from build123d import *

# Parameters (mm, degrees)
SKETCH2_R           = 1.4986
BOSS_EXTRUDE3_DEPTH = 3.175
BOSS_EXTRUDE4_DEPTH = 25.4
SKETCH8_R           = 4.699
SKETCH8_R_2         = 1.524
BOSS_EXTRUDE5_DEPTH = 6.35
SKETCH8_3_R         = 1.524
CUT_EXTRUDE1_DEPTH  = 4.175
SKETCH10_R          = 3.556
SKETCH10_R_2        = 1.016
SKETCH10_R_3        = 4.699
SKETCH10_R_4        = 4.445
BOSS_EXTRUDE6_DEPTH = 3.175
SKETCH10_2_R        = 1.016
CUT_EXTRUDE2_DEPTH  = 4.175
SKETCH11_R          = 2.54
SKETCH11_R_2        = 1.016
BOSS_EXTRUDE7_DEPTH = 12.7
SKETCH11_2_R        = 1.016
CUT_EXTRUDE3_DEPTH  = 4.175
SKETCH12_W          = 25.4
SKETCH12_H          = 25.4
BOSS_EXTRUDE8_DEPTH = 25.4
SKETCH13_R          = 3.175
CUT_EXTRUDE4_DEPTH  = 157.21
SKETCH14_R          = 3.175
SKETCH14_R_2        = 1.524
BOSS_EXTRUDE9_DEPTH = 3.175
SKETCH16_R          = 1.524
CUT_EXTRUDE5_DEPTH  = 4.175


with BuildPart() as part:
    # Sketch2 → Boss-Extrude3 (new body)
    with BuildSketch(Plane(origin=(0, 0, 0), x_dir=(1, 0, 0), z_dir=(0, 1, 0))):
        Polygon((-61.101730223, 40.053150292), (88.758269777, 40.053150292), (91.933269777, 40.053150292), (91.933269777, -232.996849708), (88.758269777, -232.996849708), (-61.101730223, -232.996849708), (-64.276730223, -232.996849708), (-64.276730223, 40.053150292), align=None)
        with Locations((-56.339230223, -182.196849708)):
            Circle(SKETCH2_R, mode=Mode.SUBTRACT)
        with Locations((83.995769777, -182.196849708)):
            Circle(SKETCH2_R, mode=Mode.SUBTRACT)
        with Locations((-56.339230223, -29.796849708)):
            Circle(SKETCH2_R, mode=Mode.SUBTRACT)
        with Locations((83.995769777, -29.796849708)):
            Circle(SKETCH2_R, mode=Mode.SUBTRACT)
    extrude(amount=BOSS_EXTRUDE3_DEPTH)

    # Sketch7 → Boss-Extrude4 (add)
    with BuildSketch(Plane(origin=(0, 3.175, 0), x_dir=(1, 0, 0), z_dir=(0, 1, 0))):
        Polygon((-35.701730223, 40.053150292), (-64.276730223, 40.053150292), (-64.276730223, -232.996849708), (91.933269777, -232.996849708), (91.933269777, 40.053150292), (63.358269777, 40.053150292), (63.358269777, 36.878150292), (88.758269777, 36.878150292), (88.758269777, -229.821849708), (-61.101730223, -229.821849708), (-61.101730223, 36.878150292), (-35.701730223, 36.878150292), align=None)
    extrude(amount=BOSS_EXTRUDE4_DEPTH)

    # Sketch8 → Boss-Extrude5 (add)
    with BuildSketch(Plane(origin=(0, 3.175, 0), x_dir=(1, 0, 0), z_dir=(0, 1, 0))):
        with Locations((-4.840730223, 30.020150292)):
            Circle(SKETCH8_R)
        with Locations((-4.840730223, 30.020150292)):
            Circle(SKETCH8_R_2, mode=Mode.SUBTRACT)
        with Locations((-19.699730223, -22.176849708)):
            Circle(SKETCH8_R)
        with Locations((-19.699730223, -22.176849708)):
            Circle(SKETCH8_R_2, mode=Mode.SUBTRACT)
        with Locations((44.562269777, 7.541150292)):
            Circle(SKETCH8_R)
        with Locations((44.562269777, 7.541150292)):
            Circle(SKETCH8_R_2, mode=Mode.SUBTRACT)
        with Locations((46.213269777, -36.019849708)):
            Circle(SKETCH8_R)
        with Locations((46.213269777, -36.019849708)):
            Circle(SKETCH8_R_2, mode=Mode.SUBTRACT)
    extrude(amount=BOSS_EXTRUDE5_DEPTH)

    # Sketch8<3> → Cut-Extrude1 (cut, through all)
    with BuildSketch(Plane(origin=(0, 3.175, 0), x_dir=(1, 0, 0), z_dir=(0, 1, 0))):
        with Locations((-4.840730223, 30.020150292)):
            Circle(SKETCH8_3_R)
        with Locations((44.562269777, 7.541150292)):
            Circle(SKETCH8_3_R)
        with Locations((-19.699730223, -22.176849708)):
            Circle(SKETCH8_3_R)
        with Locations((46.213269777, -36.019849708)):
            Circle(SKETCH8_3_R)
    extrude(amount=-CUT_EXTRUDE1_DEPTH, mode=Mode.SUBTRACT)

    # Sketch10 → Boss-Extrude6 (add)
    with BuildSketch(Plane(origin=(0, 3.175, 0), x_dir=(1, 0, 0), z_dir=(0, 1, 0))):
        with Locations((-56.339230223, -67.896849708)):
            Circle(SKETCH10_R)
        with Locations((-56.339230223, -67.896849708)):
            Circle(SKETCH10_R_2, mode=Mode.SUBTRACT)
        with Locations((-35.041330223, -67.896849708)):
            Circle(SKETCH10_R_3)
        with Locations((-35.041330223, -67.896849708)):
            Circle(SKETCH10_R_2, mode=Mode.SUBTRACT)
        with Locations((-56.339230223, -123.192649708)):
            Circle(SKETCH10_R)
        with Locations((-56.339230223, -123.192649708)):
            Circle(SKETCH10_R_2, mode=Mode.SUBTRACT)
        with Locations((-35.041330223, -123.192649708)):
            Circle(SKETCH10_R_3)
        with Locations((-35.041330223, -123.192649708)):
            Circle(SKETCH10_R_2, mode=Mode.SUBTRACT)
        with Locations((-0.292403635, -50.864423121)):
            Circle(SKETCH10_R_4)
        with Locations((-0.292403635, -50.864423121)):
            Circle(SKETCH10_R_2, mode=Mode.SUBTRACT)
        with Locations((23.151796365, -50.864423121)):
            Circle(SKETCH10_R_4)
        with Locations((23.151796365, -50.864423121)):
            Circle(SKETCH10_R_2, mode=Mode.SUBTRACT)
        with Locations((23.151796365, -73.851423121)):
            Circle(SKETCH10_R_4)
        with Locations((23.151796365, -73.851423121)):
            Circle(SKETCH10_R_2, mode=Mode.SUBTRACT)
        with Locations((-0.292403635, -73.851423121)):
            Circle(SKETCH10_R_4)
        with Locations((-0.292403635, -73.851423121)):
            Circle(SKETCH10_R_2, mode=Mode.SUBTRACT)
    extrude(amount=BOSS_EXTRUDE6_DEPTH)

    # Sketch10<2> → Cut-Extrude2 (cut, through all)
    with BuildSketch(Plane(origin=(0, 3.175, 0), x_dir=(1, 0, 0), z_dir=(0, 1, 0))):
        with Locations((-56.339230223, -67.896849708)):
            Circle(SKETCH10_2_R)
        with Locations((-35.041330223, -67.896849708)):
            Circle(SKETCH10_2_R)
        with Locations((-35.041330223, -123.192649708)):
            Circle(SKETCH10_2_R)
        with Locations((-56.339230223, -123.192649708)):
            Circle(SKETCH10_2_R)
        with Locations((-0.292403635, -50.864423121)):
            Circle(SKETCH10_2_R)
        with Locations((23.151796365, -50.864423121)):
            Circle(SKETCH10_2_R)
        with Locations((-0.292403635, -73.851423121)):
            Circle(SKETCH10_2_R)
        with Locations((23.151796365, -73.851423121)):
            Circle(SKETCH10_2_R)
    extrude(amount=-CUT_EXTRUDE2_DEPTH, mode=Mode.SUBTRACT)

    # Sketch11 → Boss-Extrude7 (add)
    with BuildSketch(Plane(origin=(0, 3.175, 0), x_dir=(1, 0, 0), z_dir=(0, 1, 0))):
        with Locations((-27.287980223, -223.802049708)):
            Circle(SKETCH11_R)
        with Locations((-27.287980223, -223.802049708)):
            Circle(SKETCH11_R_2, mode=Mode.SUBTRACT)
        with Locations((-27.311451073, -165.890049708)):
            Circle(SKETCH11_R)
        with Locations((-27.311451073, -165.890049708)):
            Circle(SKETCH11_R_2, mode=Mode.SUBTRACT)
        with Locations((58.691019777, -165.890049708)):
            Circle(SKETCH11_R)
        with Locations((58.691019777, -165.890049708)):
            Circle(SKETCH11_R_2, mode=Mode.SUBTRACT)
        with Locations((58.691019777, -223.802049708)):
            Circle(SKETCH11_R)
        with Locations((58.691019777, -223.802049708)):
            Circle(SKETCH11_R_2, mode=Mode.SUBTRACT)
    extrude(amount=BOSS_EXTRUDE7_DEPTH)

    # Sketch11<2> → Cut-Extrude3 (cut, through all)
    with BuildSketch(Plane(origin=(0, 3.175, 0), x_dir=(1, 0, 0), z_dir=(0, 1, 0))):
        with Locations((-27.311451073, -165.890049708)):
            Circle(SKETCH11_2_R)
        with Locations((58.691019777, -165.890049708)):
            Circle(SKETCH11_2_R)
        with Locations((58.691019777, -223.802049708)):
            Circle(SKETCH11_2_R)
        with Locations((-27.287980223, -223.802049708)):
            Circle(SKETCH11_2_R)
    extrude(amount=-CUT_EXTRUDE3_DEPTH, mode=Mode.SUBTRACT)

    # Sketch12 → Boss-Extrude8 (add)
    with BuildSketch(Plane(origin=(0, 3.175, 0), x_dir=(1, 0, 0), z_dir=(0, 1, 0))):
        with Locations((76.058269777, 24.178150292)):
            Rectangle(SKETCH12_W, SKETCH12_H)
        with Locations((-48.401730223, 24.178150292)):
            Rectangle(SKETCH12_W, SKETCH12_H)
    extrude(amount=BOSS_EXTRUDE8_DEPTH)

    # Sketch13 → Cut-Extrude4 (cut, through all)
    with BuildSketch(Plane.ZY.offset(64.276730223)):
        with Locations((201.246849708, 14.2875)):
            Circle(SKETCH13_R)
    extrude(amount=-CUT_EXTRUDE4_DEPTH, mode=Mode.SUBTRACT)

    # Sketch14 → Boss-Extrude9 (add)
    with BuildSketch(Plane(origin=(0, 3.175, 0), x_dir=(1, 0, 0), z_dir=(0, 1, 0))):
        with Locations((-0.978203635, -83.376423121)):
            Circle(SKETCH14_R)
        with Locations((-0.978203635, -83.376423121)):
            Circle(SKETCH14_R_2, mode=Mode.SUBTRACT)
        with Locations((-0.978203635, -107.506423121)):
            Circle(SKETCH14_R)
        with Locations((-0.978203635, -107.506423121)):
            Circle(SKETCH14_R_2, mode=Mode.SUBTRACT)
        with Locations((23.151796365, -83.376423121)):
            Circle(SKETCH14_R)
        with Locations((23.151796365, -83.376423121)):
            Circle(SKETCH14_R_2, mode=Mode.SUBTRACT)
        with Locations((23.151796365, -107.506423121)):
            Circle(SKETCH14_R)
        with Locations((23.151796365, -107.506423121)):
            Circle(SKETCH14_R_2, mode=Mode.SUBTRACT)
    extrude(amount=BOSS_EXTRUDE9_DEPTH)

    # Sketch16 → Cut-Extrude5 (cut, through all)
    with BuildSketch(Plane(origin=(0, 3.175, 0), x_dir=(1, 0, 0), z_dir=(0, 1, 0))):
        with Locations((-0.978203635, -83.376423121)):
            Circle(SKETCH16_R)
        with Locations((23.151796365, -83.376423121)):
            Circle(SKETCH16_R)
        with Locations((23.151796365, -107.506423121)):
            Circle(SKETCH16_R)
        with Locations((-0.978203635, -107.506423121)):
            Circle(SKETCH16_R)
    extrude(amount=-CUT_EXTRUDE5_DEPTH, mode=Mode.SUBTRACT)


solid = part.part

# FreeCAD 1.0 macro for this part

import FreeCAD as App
import Part
import Sketcher
from FreeCAD import Vector
Q = App.Units.Quantity


def add_polygon(sketch, points):
    """Adds a closed chain of lines whose ends are joined by coincident constraints."""
    first, n = sketch.GeometryCount, len(points)
    for a, b in zip(points, points[1:] + points[:1]):
        sketch.addGeometry(Part.LineSegment(App.Vector(*a, 0), App.Vector(*b, 0)), False)
    for i in range(n):
        sketch.addConstraint(Sketcher.Constraint("Coincident", first + i, 2, first + (i + 1) % n, 1))

doc = App.newDocument("Part")
body = doc.addObject("PartDesign::Body", "Body")

# Sketch on XZ plane
sketch1 = body.newObject("Sketcher::SketchObject", "Sketch")
sketch1.AttachmentSupport = (doc.getObject("XZ_Plane"), [""])
sketch1.MapMode = "FlatFace"
add_polygon(sketch1, [(91.9, -40.1), (-64.3, -40.1), (-64.3, 233), (91.9, 233)])  # lines 0-3
sketch1.addGeometry(Part.Circle(Vector(84, 182.2, 0), Vector(0, 0, 1), 1.5), False)  # 4
sketch1.addGeometry(Part.Circle(Vector(-56.3, 182.2, 0), Vector(0, 0, 1), 1.5), False)  # 5
sketch1.addGeometry(Part.Circle(Vector(84, 29.8, 0), Vector(0, 0, 1), 1.5), False)  # 6
sketch1.addGeometry(Part.Circle(Vector(-56.3, 29.8, 0), Vector(0, 0, 1), 1.5), False)  # 7
sketch1.addConstraint([
    Sketcher.Constraint("Horizontal", 0),
    Sketcher.Constraint("Vertical", 1),
    Sketcher.Constraint("Horizontal", 2),
    Sketcher.Constraint("Vertical", 3),
    Sketcher.Constraint("Equal", 4, 5),
    Sketcher.Constraint("Equal", 5, 6),
    Sketcher.Constraint("Equal", 6, 7),
    Sketcher.Constraint("Horizontal", 4, 3, 5, 3),
    Sketcher.Constraint("Horizontal", 6, 3, 7, 3),
    Sketcher.Constraint("Vertical", 4, 3, 6, 3),
    Sketcher.Constraint("Vertical", 5, 3, 7, 3),
    Sketcher.Constraint("Diameter", 4, Q("0.118 in")),
    Sketcher.Constraint("DistanceY", 6, 3, 4, 3, Q("6 in")),
    Sketcher.Constraint("DistanceY", 5, 3, 1, 2, Q("2 in")),
    Sketcher.Constraint("DistanceX", 0, 2, 0, 1, Q("6.15 in")),
    Sketcher.Constraint("DistanceY", 1, 1, 1, 2, Q("10.75 in")),
    Sketcher.Constraint("DistanceX", 5, 3, 4, 3, Q("5.525 in")),
    Sketcher.Constraint("DistanceX", 0, 2, 7, 3, Q("0.3125 in")),
    Sketcher.Constraint("DistanceX", -1, 1, 4, 3, Q("83.99577 mm")),
    Sketcher.Constraint("DistanceY", -1, 1, 4, 3, Q("182.19685 mm")),
])
pad1 = body.newObject("PartDesign::Pad", "Pad")
pad1.Profile = sketch1
pad1.Length = Q("0.125 in")
pad1.Reversed = True

# Sketch on XZ plane
sketch2 = body.newObject("Sketcher::SketchObject", "Sketch001")
sketch2.AttachmentSupport = (doc.getObject("XZ_Plane"), [""])
sketch2.MapMode = "FlatFace"
sketch2.AttachmentOffset = App.Placement(Vector(0, 0, -0.125 * 25.4), App.Rotation())
add_polygon(sketch2, [(-35.7, -40.1), (-64.3, -40.1), (-64.3, 233), (91.9, 233), (91.9, -40.1), (63.4, -40.1), (63.4, -36.9), (88.8, -36.9), (88.8, 229.8), (-61.1, 229.8), (-61.1, -36.9), (-35.7, -36.9)])  # lines 0-11
sketch2.addConstraint([
    Sketcher.Constraint("Horizontal", 0),
    Sketcher.Constraint("Vertical", 1),
    Sketcher.Constraint("Horizontal", 2),
    Sketcher.Constraint("Vertical", 3),
    Sketcher.Constraint("Horizontal", 4),
    Sketcher.Constraint("Vertical", 5),
    Sketcher.Constraint("Horizontal", 6),
    Sketcher.Constraint("Vertical", 7),
    Sketcher.Constraint("Horizontal", 8),
    Sketcher.Constraint("Vertical", 9),
    Sketcher.Constraint("Horizontal", 10),
    Sketcher.Constraint("Vertical", 11),
    Sketcher.Constraint("Horizontal", 0, 2, 3, 2),
    Sketcher.Constraint("Horizontal", 6, 2, 9, 2),
    Sketcher.Constraint("Equal", 0, 4),
    Sketcher.Constraint("Equal", 6, 10),
    Sketcher.Constraint("DistanceX", 6, 1, 6, 2, Q("1 in")),
    Sketcher.Constraint("DistanceX", 8, 2, 8, 1, Q("5.9 in")),
    Sketcher.Constraint("DistanceY", 7, 1, 7, 2, Q("10.5 in")),
    Sketcher.Constraint("DistanceX", 2, 1, 2, 2, Q("6.15 in")),
    Sketcher.Constraint("DistanceY", 1, 1, 1, 2, Q("10.75 in")),
    Sketcher.Constraint("DistanceY", 5, 1, 5, 2, Q("0.125 in")),
    Sketcher.Constraint("DistanceX", 0, 2, -1, 1, Q("64.27673 mm")),
    Sketcher.Constraint("DistanceY", 0, 2, -1, 1, Q("40.05315 mm")),
])
pad2 = body.newObject("PartDesign::Pad", "Pad001")
pad2.Profile = sketch2
pad2.Length = Q("1 in")
pad2.Reversed = True

# Sketch on XZ plane
sketch3 = body.newObject("Sketcher::SketchObject", "Sketch002")
sketch3.AttachmentSupport = (doc.getObject("XZ_Plane"), [""])
sketch3.MapMode = "FlatFace"
sketch3.AttachmentOffset = App.Placement(Vector(0, 0, -0.125 * 25.4), App.Rotation())
sketch3.addGeometry([
    Part.Circle(Vector(-4.8, -30, 0), Vector(0, 0, 1), 4.7),  # 0
    Part.Circle(Vector(-4.8, -30, 0), Vector(0, 0, 1), 1.5),  # 1
    Part.Circle(Vector(-19.7, 22.2, 0), Vector(0, 0, 1), 4.7),  # 2
    Part.Circle(Vector(-19.7, 22.2, 0), Vector(0, 0, 1), 1.5),  # 3
    Part.Circle(Vector(44.6, -7.5, 0), Vector(0, 0, 1), 4.7),  # 4
    Part.Circle(Vector(44.6, -7.5, 0), Vector(0, 0, 1), 1.5),  # 5
    Part.Circle(Vector(46.2, 36, 0), Vector(0, 0, 1), 4.7),  # 6
    Part.Circle(Vector(46.2, 36, 0), Vector(0, 0, 1), 1.5),  # 7
], False)
sketch3.addConstraint([
    Sketcher.Constraint("Coincident", 1, 3, 0, 3),
    Sketcher.Constraint("Coincident", 3, 3, 2, 3),
    Sketcher.Constraint("Coincident", 5, 3, 4, 3),
    Sketcher.Constraint("Coincident", 7, 3, 6, 3),
    Sketcher.Constraint("Equal", 0, 2),
    Sketcher.Constraint("Equal", 1, 3),
    Sketcher.Constraint("Equal", 2, 4),
    Sketcher.Constraint("Equal", 3, 5),
    Sketcher.Constraint("Equal", 4, 6),
    Sketcher.Constraint("Equal", 5, 7),
    Sketcher.Constraint("Diameter", 0, Q("0.37 in")),
    Sketcher.Constraint("Diameter", 1, Q("0.12 in")),
    Sketcher.Constraint("DistanceY", 0, 3, 6, 3, Q("2.6 in")),
    Sketcher.Constraint("DistanceX", 2, 3, 4, 3, Q("2.53 in")),
    Sketcher.Constraint("DistanceY", 4, 3, 2, 3, Q("1.17 in")),
    Sketcher.Constraint("DistanceX", 0, 3, 6, 3, Q("2.01 in")),
    Sketcher.Constraint("DistanceX", 2, 3, 0, 3, Q("0.585 in")),
    Sketcher.Constraint("DistanceY", 0, 3, 2, 3, Q("2.055 in")),
    Sketcher.Constraint("DistanceX", 0, 3, -1, 1, Q("4.84073 mm")),
    Sketcher.Constraint("DistanceY", 0, 3, -1, 1, Q("30.02015 mm")),
])
pad3 = body.newObject("PartDesign::Pad", "Pad002")
pad3.Profile = sketch3
pad3.Length = Q("0.25 in")
pad3.Reversed = True

# Sketch on XZ plane
sketch4 = body.newObject("Sketcher::SketchObject", "Sketch003")
sketch4.AttachmentSupport = (doc.getObject("XZ_Plane"), [""])
sketch4.MapMode = "FlatFace"
sketch4.AttachmentOffset = App.Placement(Vector(0, 0, -0.125 * 25.4), App.Rotation())
sketch4.addGeometry([
    Part.Circle(Vector(-4.8, -30, 0), Vector(0, 0, 1), 1.5),
    Part.Circle(Vector(44.6, -7.5, 0), Vector(0, 0, 1), 1.5),
    Part.Circle(Vector(-19.7, 22.2, 0), Vector(0, 0, 1), 1.5),
    Part.Circle(Vector(46.2, 36, 0), Vector(0, 0, 1), 1.5),
], False)
sketch4.addConstraint([
    Sketcher.Constraint("Equal", 0, 1),
    Sketcher.Constraint("Equal", 1, 2),
    Sketcher.Constraint("Equal", 2, 3),
    Sketcher.Constraint("Diameter", 0, Q("0.12 in")),
    Sketcher.Constraint("DistanceY", 0, 3, 3, 3, Q("2.6 in")),
    Sketcher.Constraint("DistanceX", 2, 3, 1, 3, Q("2.53 in")),
    Sketcher.Constraint("DistanceY", 1, 3, 2, 3, Q("1.17 in")),
    Sketcher.Constraint("DistanceX", 0, 3, 3, 3, Q("2.01 in")),
    Sketcher.Constraint("DistanceX", 0, 3, 1, 3, Q("1.945 in")),
    Sketcher.Constraint("DistanceY", 0, 3, 1, 3, Q("0.885 in")),
    Sketcher.Constraint("DistanceX", 0, 3, -1, 1, Q("4.84073 mm")),
    Sketcher.Constraint("DistanceY", 0, 3, -1, 1, Q("30.02015 mm")),
])
pocket1 = body.newObject("PartDesign::Pocket", "Pocket")
pocket1.Profile = sketch4
pocket1.Type = "ThroughAll"
pocket1.Reversed = True

# Sketch on XZ plane
sketch5 = body.newObject("Sketcher::SketchObject", "Sketch004")
sketch5.AttachmentSupport = (doc.getObject("XZ_Plane"), [""])
sketch5.MapMode = "FlatFace"
sketch5.AttachmentOffset = App.Placement(Vector(0, 0, -0.125 * 25.4), App.Rotation())
sketch5.addGeometry([
    Part.Circle(Vector(-56.3, 67.9, 0), Vector(0, 0, 1), 3.6),  # 0
    Part.Circle(Vector(-56.3, 67.9, 0), Vector(0, 0, 1), 1),  # 1
    Part.Circle(Vector(-35, 67.9, 0), Vector(0, 0, 1), 4.7),  # 2
    Part.Circle(Vector(-35, 67.9, 0), Vector(0, 0, 1), 1),  # 3
    Part.Circle(Vector(-56.3, 123.2, 0), Vector(0, 0, 1), 3.6),  # 4
    Part.Circle(Vector(-56.3, 123.2, 0), Vector(0, 0, 1), 1),  # 5
    Part.Circle(Vector(-35, 123.2, 0), Vector(0, 0, 1), 4.7),  # 6
    Part.Circle(Vector(-35, 123.2, 0), Vector(0, 0, 1), 1),  # 7
    Part.Circle(Vector(-0.3, 50.9, 0), Vector(0, 0, 1), 4.4),  # 8
    Part.Circle(Vector(-0.3, 50.9, 0), Vector(0, 0, 1), 1),  # 9
    Part.Circle(Vector(23.2, 50.9, 0), Vector(0, 0, 1), 4.4),  # 10
    Part.Circle(Vector(23.2, 50.9, 0), Vector(0, 0, 1), 1),  # 11
    Part.Circle(Vector(23.2, 73.9, 0), Vector(0, 0, 1), 4.4),  # 12
    Part.Circle(Vector(23.2, 73.9, 0), Vector(0, 0, 1), 1),  # 13
    Part.Circle(Vector(-0.3, 73.9, 0), Vector(0, 0, 1), 4.4),  # 14
    Part.Circle(Vector(-0.3, 73.9, 0), Vector(0, 0, 1), 1),  # 15
], False)
sketch5.addConstraint([
    Sketcher.Constraint("Coincident", 1, 3, 0, 3),
    Sketcher.Constraint("Coincident", 3, 3, 2, 3),
    Sketcher.Constraint("Coincident", 5, 3, 4, 3),
    Sketcher.Constraint("Coincident", 7, 3, 6, 3),
    Sketcher.Constraint("Coincident", 9, 3, 8, 3),
    Sketcher.Constraint("Coincident", 11, 3, 10, 3),
    Sketcher.Constraint("Coincident", 13, 3, 12, 3),
    Sketcher.Constraint("Coincident", 15, 3, 14, 3),
    Sketcher.Constraint("Equal", 1, 3),
    Sketcher.Constraint("Equal", 0, 4),
    Sketcher.Constraint("Equal", 3, 5),
    Sketcher.Constraint("Equal", 2, 6),
    Sketcher.Constraint("Equal", 5, 7),
    Sketcher.Constraint("Equal", 7, 9),
    Sketcher.Constraint("Equal", 8, 10),
    Sketcher.Constraint("Equal", 9, 11),
    Sketcher.Constraint("Equal", 10, 12),
    Sketcher.Constraint("Equal", 11, 13),
    Sketcher.Constraint("Equal", 12, 14),
    Sketcher.Constraint("Equal", 13, 15),
    Sketcher.Constraint("Horizontal", 1, 3, 2, 3),
    Sketcher.Constraint("Horizontal", 5, 3, 6, 3),
    Sketcher.Constraint("Horizontal", 9, 3, 10, 3),
    Sketcher.Constraint("Horizontal", 13, 3, 14, 3),
    Sketcher.Constraint("Vertical", 1, 3, 4, 3),
    Sketcher.Constraint("Vertical", 3, 3, 6, 3),
    Sketcher.Constraint("Vertical", 11, 3, 12, 3),
    Sketcher.Constraint("Vertical", 9, 3, 14, 3),
    Sketcher.Constraint("Diameter", 0, Q("0.28 in")),
    Sketcher.Constraint("Diameter", 1, Q("0.08 in")),
    Sketcher.Constraint("Diameter", 2, Q("0.37 in")),
    Sketcher.Constraint("Diameter", 8, Q("0.35 in")),
    Sketcher.Constraint("DistanceY", 0, 3, 4, 3, Q("2.177 in")),
    Sketcher.Constraint("DistanceX", 8, 3, 10, 3, Q("0.923 in")),
    Sketcher.Constraint("DistanceY", 10, 3, 12, 3, Q("0.905 in")),
    Sketcher.Constraint("DistanceX", 0, 3, 2, 3, Q("0.8385 in")),
    Sketcher.Constraint("DistanceX", 0, 3, -1, 1, Q("56.33923 mm")),
    Sketcher.Constraint("DistanceY", -1, 1, 0, 3, Q("67.89685 mm")),
    Sketcher.Constraint("DistanceX", 8, 3, -1, 1, Q("0.292404 mm")),
    Sketcher.Constraint("DistanceY", -1, 1, 8, 3, Q("50.864423 mm")),
])
pad4 = body.newObject("PartDesign::Pad", "Pad003")
pad4.Profile = sketch5
pad4.Length = Q("0.125 in")
pad4.Reversed = True

# Sketch on XZ plane
sketch6 = body.newObject("Sketcher::SketchObject", "Sketch005")
sketch6.AttachmentSupport = (doc.getObject("XZ_Plane"), [""])
sketch6.MapMode = "FlatFace"
sketch6.AttachmentOffset = App.Placement(Vector(0, 0, -0.125 * 25.4), App.Rotation())
sketch6.addGeometry([
    Part.Circle(Vector(-56.3, 67.9, 0), Vector(0, 0, 1), 1),  # 0
    Part.Circle(Vector(-35, 67.9, 0), Vector(0, 0, 1), 1),  # 1
    Part.Circle(Vector(-35, 123.2, 0), Vector(0, 0, 1), 1),  # 2
    Part.Circle(Vector(-56.3, 123.2, 0), Vector(0, 0, 1), 1),  # 3
    Part.Circle(Vector(-0.3, 50.9, 0), Vector(0, 0, 1), 1),  # 4
    Part.Circle(Vector(23.2, 50.9, 0), Vector(0, 0, 1), 1),  # 5
    Part.Circle(Vector(-0.3, 73.9, 0), Vector(0, 0, 1), 1),  # 6
    Part.Circle(Vector(23.2, 73.9, 0), Vector(0, 0, 1), 1),  # 7
], False)
sketch6.addConstraint([
    Sketcher.Constraint("Equal", 0, 1),
    Sketcher.Constraint("Equal", 1, 2),
    Sketcher.Constraint("Equal", 2, 3),
    Sketcher.Constraint("Equal", 3, 4),
    Sketcher.Constraint("Equal", 4, 5),
    Sketcher.Constraint("Equal", 5, 6),
    Sketcher.Constraint("Equal", 6, 7),
    Sketcher.Constraint("Horizontal", 0, 3, 1, 3),
    Sketcher.Constraint("Horizontal", 2, 3, 3, 3),
    Sketcher.Constraint("Horizontal", 4, 3, 5, 3),
    Sketcher.Constraint("Horizontal", 6, 3, 7, 3),
    Sketcher.Constraint("Vertical", 1, 3, 2, 3),
    Sketcher.Constraint("Vertical", 0, 3, 3, 3),
    Sketcher.Constraint("Vertical", 4, 3, 6, 3),
    Sketcher.Constraint("Vertical", 5, 3, 7, 3),
    Sketcher.Constraint("Diameter", 0, Q("0.08 in")),
    Sketcher.Constraint("DistanceY", 1, 3, 2, 3, Q("2.177 in")),
    Sketcher.Constraint("DistanceX", 4, 3, 5, 3, Q("0.923 in")),
    Sketcher.Constraint("DistanceY", 4, 3, 6, 3, Q("0.905 in")),
    Sketcher.Constraint("DistanceX", 0, 3, 1, 3, Q("0.8385 in")),
    Sketcher.Constraint("DistanceX", 0, 3, -1, 1, Q("56.33923 mm")),
    Sketcher.Constraint("DistanceY", -1, 1, 0, 3, Q("67.89685 mm")),
    Sketcher.Constraint("DistanceX", 4, 3, -1, 1, Q("0.292404 mm")),
    Sketcher.Constraint("DistanceY", -1, 1, 4, 3, Q("50.864423 mm")),
])
pocket2 = body.newObject("PartDesign::Pocket", "Pocket001")
pocket2.Profile = sketch6
pocket2.Type = "ThroughAll"
pocket2.Reversed = True

# Sketch on XZ plane
sketch7 = body.newObject("Sketcher::SketchObject", "Sketch006")
sketch7.AttachmentSupport = (doc.getObject("XZ_Plane"), [""])
sketch7.MapMode = "FlatFace"
sketch7.AttachmentOffset = App.Placement(Vector(0, 0, -0.125 * 25.4), App.Rotation())
sketch7.addGeometry([
    Part.Circle(Vector(-27.3, 223.8, 0), Vector(0, 0, 1), 2.5),  # 0
    Part.Circle(Vector(-27.3, 223.8, 0), Vector(0, 0, 1), 1),  # 1
    Part.Circle(Vector(-27.3, 165.9, 0), Vector(0, 0, 1), 2.5),  # 2
    Part.Circle(Vector(-27.3, 165.9, 0), Vector(0, 0, 1), 1),  # 3
    Part.Circle(Vector(58.7, 165.9, 0), Vector(0, 0, 1), 2.5),  # 4
    Part.Circle(Vector(58.7, 165.9, 0), Vector(0, 0, 1), 1),  # 5
    Part.Circle(Vector(58.7, 223.8, 0), Vector(0, 0, 1), 2.5),  # 6
    Part.Circle(Vector(58.7, 223.8, 0), Vector(0, 0, 1), 1),  # 7
], False)
sketch7.addConstraint([
    Sketcher.Constraint("Coincident", 1, 3, 0, 3),
    Sketcher.Constraint("Coincident", 3, 3, 2, 3),
    Sketcher.Constraint("Coincident", 5, 3, 4, 3),
    Sketcher.Constraint("Coincident", 7, 3, 6, 3),
    Sketcher.Constraint("Equal", 0, 2),
    Sketcher.Constraint("Equal", 1, 3),
    Sketcher.Constraint("Equal", 2, 4),
    Sketcher.Constraint("Equal", 3, 5),
    Sketcher.Constraint("Equal", 4, 6),
    Sketcher.Constraint("Equal", 5, 7),
    Sketcher.Constraint("Horizontal", 3, 3, 4, 3),
    Sketcher.Constraint("Horizontal", 1, 3, 6, 3),
    Sketcher.Constraint("Vertical", 5, 3, 6, 3),
    Sketcher.Constraint("Diameter", 0, Q("0.2 in")),
    Sketcher.Constraint("Diameter", 1, Q("0.08 in")),
    Sketcher.Constraint("DistanceY", 2, 3, 0, 3, Q("2.28 in")),
    Sketcher.Constraint("DistanceX", 0, 3, 4, 3, Q("3.385 in")),
    Sketcher.Constraint("DistanceX", 0, 3, -1, 1, Q("27.28798 mm")),
    Sketcher.Constraint("DistanceY", -1, 1, 0, 3, Q("223.80205 mm")),
    Sketcher.Constraint("DistanceX", 2, 3, -1, 1, Q("27.311451 mm")),
])
pad5 = body.newObject("PartDesign::Pad", "Pad004")
pad5.Profile = sketch7
pad5.Length = Q("0.5 in")
pad5.Reversed = True

# Sketch on XZ plane
sketch8 = body.newObject("Sketcher::SketchObject", "Sketch007")
sketch8.AttachmentSupport = (doc.getObject("XZ_Plane"), [""])
sketch8.MapMode = "FlatFace"
sketch8.AttachmentOffset = App.Placement(Vector(0, 0, -0.125 * 25.4), App.Rotation())
sketch8.addGeometry([
    Part.Circle(Vector(-27.3, 165.9, 0), Vector(0, 0, 1), 1),
    Part.Circle(Vector(58.7, 165.9, 0), Vector(0, 0, 1), 1),
    Part.Circle(Vector(58.7, 223.8, 0), Vector(0, 0, 1), 1),
    Part.Circle(Vector(-27.3, 223.8, 0), Vector(0, 0, 1), 1),
], False)
sketch8.addConstraint([
    Sketcher.Constraint("Equal", 0, 1),
    Sketcher.Constraint("Equal", 1, 2),
    Sketcher.Constraint("Equal", 2, 3),
    Sketcher.Constraint("Horizontal", 0, 3, 1, 3),
    Sketcher.Constraint("Horizontal", 2, 3, 3, 3),
    Sketcher.Constraint("Vertical", 1, 3, 2, 3),
    Sketcher.Constraint("Diameter", 0, Q("0.08 in")),
    Sketcher.Constraint("DistanceY", 1, 3, 2, 3, Q("2.28 in")),
    Sketcher.Constraint("DistanceX", 3, 3, 2, 3, Q("3.385 in")),
    Sketcher.Constraint("DistanceX", 0, 3, -1, 1, Q("27.311451 mm")),
    Sketcher.Constraint("DistanceY", -1, 1, 0, 3, Q("165.89005 mm")),
    Sketcher.Constraint("DistanceX", -1, 1, 1, 3, Q("58.69102 mm")),
])
pocket3 = body.newObject("PartDesign::Pocket", "Pocket002")
pocket3.Profile = sketch8
pocket3.Type = "ThroughAll"
pocket3.Reversed = True

# Sketch on XZ plane
sketch9 = body.newObject("Sketcher::SketchObject", "Sketch008")
sketch9.AttachmentSupport = (doc.getObject("XZ_Plane"), [""])
sketch9.MapMode = "FlatFace"
sketch9.AttachmentOffset = App.Placement(Vector(0, 0, -0.125 * 25.4), App.Rotation())
add_polygon(sketch9, [(63, -37), (63, -11), (89, -11), (89, -37)])  # lines 0-3
add_polygon(sketch9, [(-61, -37), (-61, -11), (-36, -11), (-36, -37)])  # lines 4-7
sketch9.addConstraint([
    Sketcher.Constraint("Vertical", 0),
    Sketcher.Constraint("Horizontal", 1),
    Sketcher.Constraint("Vertical", 2),
    Sketcher.Constraint("Horizontal", 3),
    Sketcher.Constraint("Vertical", 4),
    Sketcher.Constraint("Horizontal", 5),
    Sketcher.Constraint("Vertical", 6),
    Sketcher.Constraint("Horizontal", 7),
    Sketcher.Constraint("Horizontal", 1, 2, 4, 2),
    Sketcher.Constraint("Horizontal", 3, 2, 6, 2),
    Sketcher.Constraint("Equal", 3, 5),
    Sketcher.Constraint("Equal", 7, 0),
    Sketcher.Constraint("DistanceX", 1, 1, 1, 2, Q("1 in")),
    Sketcher.Constraint("DistanceX", 4, 2, 0, 2, Q("4.9 in")),
    Sketcher.Constraint("DistanceX", -1, 1, 0, 2, Q("63.35827 mm")),
    Sketcher.Constraint("DistanceY", 0, 2, -1, 1, Q("11.47815 mm")),
])
pad6 = body.newObject("PartDesign::Pad", "Pad005")
pad6.Profile = sketch9
pad6.Length = Q("1 in")
pad6.Reversed = True

# Sketch on YZ plane
sketch10 = body.newObject("Sketcher::SketchObject", "Sketch009")
sketch10.AttachmentSupport = (doc.getObject("YZ_Plane"), [""])
sketch10.MapMode = "FlatFace"
sketch10.AttachmentOffset = App.Placement(Vector(0, 0, -64.27673), App.Rotation())
sketch10.addGeometry(Part.Circle(Vector(14.3, 201.2, 0), Vector(0, 0, 1), 3.2), False)
sketch10.addConstraint([
    Sketcher.Constraint("Diameter", 0, Q("0.25 in")),
    Sketcher.Constraint("DistanceX", -1, 1, 0, 3, Q("0.5625 in")),
    Sketcher.Constraint("DistanceY", -1, 1, 0, 3, Q("201.24685 mm")),
])
pocket4 = body.newObject("PartDesign::Pocket", "Pocket003")
pocket4.Profile = sketch10
pocket4.Type = "ThroughAll"
pocket4.Reversed = True

# Sketch on XZ plane
sketch11 = body.newObject("Sketcher::SketchObject", "Sketch010")
sketch11.AttachmentSupport = (doc.getObject("XZ_Plane"), [""])
sketch11.MapMode = "FlatFace"
sketch11.AttachmentOffset = App.Placement(Vector(0, 0, -0.125 * 25.4), App.Rotation())
sketch11.addGeometry([
    Part.Circle(Vector(-1, 83.4, 0), Vector(0, 0, 1), 3.2),  # 0
    Part.Circle(Vector(-1, 83.4, 0), Vector(0, 0, 1), 1.5),  # 1
    Part.Circle(Vector(-1, 107.5, 0), Vector(0, 0, 1), 3.2),  # 2
    Part.Circle(Vector(-1, 107.5, 0), Vector(0, 0, 1), 1.5),  # 3
    Part.Circle(Vector(23.2, 83.4, 0), Vector(0, 0, 1), 3.2),  # 4
    Part.Circle(Vector(23.2, 83.4, 0), Vector(0, 0, 1), 1.5),  # 5
    Part.Circle(Vector(23.2, 107.5, 0), Vector(0, 0, 1), 3.2),  # 6
    Part.Circle(Vector(23.2, 107.5, 0), Vector(0, 0, 1), 1.5),  # 7
], False)
sketch11.addConstraint([
    Sketcher.Constraint("Coincident", 1, 3, 0, 3),
    Sketcher.Constraint("Coincident", 3, 3, 2, 3),
    Sketcher.Constraint("Coincident", 5, 3, 4, 3),
    Sketcher.Constraint("Coincident", 7, 3, 6, 3),
    Sketcher.Constraint("Equal", 0, 2),
    Sketcher.Constraint("Equal", 1, 3),
    Sketcher.Constraint("Equal", 2, 4),
    Sketcher.Constraint("Equal", 3, 5),
    Sketcher.Constraint("Equal", 4, 6),
    Sketcher.Constraint("Equal", 5, 7),
    Sketcher.Constraint("Horizontal", 1, 3, 4, 3),
    Sketcher.Constraint("Horizontal", 3, 3, 6, 3),
    Sketcher.Constraint("Vertical", 1, 3, 2, 3),
    Sketcher.Constraint("Vertical", 5, 3, 6, 3),
    Sketcher.Constraint("Diameter", 0, Q("0.25 in")),
    Sketcher.Constraint("Diameter", 1, Q("0.12 in")),
    Sketcher.Constraint("DistanceY", 0, 3, 2, 3, Q("0.95 in")),
    Sketcher.Constraint("DistanceX", 0, 3, 4, 3, Q("0.95 in")),
    Sketcher.Constraint("DistanceX", 0, 3, -1, 1, Q("0.978204 mm")),
    Sketcher.Constraint("DistanceY", -1, 1, 0, 3, Q("83.376423 mm")),
])
pad7 = body.newObject("PartDesign::Pad", "Pad006")
pad7.Profile = sketch11
pad7.Length = Q("0.125 in")
pad7.Reversed = True

# Sketch on XZ plane
sketch12 = body.newObject("Sketcher::SketchObject", "Sketch011")
sketch12.AttachmentSupport = (doc.getObject("XZ_Plane"), [""])
sketch12.MapMode = "FlatFace"
sketch12.AttachmentOffset = App.Placement(Vector(0, 0, -0.125 * 25.4), App.Rotation())
sketch12.addGeometry([
    Part.Circle(Vector(-1, 83.4, 0), Vector(0, 0, 1), 1.5),
    Part.Circle(Vector(23.2, 83.4, 0), Vector(0, 0, 1), 1.5),
    Part.Circle(Vector(23.2, 107.5, 0), Vector(0, 0, 1), 1.5),
    Part.Circle(Vector(-1, 107.5, 0), Vector(0, 0, 1), 1.5),
], False)
sketch12.addConstraint([
    Sketcher.Constraint("Equal", 0, 1),
    Sketcher.Constraint("Equal", 1, 2),
    Sketcher.Constraint("Equal", 2, 3),
    Sketcher.Constraint("Horizontal", 0, 3, 1, 3),
    Sketcher.Constraint("Horizontal", 2, 3, 3, 3),
    Sketcher.Constraint("Vertical", 1, 3, 2, 3),
    Sketcher.Constraint("Vertical", 0, 3, 3, 3),
    Sketcher.Constraint("Diameter", 0, Q("0.12 in")),
    Sketcher.Constraint("DistanceX", 0, 3, 1, 3, Q("0.95 in")),
    Sketcher.Constraint("DistanceY", 1, 3, 2, 3, Q("0.95 in")),
    Sketcher.Constraint("DistanceX", 0, 3, -1, 1, Q("0.978204 mm")),
    Sketcher.Constraint("DistanceY", -1, 1, 0, 3, Q("83.376423 mm")),
])
pocket5 = body.newObject("PartDesign::Pocket", "Pocket004")
pocket5.Profile = sketch12
pocket5.Type = "ThroughAll"
pocket5.Reversed = True

doc.recompute()
